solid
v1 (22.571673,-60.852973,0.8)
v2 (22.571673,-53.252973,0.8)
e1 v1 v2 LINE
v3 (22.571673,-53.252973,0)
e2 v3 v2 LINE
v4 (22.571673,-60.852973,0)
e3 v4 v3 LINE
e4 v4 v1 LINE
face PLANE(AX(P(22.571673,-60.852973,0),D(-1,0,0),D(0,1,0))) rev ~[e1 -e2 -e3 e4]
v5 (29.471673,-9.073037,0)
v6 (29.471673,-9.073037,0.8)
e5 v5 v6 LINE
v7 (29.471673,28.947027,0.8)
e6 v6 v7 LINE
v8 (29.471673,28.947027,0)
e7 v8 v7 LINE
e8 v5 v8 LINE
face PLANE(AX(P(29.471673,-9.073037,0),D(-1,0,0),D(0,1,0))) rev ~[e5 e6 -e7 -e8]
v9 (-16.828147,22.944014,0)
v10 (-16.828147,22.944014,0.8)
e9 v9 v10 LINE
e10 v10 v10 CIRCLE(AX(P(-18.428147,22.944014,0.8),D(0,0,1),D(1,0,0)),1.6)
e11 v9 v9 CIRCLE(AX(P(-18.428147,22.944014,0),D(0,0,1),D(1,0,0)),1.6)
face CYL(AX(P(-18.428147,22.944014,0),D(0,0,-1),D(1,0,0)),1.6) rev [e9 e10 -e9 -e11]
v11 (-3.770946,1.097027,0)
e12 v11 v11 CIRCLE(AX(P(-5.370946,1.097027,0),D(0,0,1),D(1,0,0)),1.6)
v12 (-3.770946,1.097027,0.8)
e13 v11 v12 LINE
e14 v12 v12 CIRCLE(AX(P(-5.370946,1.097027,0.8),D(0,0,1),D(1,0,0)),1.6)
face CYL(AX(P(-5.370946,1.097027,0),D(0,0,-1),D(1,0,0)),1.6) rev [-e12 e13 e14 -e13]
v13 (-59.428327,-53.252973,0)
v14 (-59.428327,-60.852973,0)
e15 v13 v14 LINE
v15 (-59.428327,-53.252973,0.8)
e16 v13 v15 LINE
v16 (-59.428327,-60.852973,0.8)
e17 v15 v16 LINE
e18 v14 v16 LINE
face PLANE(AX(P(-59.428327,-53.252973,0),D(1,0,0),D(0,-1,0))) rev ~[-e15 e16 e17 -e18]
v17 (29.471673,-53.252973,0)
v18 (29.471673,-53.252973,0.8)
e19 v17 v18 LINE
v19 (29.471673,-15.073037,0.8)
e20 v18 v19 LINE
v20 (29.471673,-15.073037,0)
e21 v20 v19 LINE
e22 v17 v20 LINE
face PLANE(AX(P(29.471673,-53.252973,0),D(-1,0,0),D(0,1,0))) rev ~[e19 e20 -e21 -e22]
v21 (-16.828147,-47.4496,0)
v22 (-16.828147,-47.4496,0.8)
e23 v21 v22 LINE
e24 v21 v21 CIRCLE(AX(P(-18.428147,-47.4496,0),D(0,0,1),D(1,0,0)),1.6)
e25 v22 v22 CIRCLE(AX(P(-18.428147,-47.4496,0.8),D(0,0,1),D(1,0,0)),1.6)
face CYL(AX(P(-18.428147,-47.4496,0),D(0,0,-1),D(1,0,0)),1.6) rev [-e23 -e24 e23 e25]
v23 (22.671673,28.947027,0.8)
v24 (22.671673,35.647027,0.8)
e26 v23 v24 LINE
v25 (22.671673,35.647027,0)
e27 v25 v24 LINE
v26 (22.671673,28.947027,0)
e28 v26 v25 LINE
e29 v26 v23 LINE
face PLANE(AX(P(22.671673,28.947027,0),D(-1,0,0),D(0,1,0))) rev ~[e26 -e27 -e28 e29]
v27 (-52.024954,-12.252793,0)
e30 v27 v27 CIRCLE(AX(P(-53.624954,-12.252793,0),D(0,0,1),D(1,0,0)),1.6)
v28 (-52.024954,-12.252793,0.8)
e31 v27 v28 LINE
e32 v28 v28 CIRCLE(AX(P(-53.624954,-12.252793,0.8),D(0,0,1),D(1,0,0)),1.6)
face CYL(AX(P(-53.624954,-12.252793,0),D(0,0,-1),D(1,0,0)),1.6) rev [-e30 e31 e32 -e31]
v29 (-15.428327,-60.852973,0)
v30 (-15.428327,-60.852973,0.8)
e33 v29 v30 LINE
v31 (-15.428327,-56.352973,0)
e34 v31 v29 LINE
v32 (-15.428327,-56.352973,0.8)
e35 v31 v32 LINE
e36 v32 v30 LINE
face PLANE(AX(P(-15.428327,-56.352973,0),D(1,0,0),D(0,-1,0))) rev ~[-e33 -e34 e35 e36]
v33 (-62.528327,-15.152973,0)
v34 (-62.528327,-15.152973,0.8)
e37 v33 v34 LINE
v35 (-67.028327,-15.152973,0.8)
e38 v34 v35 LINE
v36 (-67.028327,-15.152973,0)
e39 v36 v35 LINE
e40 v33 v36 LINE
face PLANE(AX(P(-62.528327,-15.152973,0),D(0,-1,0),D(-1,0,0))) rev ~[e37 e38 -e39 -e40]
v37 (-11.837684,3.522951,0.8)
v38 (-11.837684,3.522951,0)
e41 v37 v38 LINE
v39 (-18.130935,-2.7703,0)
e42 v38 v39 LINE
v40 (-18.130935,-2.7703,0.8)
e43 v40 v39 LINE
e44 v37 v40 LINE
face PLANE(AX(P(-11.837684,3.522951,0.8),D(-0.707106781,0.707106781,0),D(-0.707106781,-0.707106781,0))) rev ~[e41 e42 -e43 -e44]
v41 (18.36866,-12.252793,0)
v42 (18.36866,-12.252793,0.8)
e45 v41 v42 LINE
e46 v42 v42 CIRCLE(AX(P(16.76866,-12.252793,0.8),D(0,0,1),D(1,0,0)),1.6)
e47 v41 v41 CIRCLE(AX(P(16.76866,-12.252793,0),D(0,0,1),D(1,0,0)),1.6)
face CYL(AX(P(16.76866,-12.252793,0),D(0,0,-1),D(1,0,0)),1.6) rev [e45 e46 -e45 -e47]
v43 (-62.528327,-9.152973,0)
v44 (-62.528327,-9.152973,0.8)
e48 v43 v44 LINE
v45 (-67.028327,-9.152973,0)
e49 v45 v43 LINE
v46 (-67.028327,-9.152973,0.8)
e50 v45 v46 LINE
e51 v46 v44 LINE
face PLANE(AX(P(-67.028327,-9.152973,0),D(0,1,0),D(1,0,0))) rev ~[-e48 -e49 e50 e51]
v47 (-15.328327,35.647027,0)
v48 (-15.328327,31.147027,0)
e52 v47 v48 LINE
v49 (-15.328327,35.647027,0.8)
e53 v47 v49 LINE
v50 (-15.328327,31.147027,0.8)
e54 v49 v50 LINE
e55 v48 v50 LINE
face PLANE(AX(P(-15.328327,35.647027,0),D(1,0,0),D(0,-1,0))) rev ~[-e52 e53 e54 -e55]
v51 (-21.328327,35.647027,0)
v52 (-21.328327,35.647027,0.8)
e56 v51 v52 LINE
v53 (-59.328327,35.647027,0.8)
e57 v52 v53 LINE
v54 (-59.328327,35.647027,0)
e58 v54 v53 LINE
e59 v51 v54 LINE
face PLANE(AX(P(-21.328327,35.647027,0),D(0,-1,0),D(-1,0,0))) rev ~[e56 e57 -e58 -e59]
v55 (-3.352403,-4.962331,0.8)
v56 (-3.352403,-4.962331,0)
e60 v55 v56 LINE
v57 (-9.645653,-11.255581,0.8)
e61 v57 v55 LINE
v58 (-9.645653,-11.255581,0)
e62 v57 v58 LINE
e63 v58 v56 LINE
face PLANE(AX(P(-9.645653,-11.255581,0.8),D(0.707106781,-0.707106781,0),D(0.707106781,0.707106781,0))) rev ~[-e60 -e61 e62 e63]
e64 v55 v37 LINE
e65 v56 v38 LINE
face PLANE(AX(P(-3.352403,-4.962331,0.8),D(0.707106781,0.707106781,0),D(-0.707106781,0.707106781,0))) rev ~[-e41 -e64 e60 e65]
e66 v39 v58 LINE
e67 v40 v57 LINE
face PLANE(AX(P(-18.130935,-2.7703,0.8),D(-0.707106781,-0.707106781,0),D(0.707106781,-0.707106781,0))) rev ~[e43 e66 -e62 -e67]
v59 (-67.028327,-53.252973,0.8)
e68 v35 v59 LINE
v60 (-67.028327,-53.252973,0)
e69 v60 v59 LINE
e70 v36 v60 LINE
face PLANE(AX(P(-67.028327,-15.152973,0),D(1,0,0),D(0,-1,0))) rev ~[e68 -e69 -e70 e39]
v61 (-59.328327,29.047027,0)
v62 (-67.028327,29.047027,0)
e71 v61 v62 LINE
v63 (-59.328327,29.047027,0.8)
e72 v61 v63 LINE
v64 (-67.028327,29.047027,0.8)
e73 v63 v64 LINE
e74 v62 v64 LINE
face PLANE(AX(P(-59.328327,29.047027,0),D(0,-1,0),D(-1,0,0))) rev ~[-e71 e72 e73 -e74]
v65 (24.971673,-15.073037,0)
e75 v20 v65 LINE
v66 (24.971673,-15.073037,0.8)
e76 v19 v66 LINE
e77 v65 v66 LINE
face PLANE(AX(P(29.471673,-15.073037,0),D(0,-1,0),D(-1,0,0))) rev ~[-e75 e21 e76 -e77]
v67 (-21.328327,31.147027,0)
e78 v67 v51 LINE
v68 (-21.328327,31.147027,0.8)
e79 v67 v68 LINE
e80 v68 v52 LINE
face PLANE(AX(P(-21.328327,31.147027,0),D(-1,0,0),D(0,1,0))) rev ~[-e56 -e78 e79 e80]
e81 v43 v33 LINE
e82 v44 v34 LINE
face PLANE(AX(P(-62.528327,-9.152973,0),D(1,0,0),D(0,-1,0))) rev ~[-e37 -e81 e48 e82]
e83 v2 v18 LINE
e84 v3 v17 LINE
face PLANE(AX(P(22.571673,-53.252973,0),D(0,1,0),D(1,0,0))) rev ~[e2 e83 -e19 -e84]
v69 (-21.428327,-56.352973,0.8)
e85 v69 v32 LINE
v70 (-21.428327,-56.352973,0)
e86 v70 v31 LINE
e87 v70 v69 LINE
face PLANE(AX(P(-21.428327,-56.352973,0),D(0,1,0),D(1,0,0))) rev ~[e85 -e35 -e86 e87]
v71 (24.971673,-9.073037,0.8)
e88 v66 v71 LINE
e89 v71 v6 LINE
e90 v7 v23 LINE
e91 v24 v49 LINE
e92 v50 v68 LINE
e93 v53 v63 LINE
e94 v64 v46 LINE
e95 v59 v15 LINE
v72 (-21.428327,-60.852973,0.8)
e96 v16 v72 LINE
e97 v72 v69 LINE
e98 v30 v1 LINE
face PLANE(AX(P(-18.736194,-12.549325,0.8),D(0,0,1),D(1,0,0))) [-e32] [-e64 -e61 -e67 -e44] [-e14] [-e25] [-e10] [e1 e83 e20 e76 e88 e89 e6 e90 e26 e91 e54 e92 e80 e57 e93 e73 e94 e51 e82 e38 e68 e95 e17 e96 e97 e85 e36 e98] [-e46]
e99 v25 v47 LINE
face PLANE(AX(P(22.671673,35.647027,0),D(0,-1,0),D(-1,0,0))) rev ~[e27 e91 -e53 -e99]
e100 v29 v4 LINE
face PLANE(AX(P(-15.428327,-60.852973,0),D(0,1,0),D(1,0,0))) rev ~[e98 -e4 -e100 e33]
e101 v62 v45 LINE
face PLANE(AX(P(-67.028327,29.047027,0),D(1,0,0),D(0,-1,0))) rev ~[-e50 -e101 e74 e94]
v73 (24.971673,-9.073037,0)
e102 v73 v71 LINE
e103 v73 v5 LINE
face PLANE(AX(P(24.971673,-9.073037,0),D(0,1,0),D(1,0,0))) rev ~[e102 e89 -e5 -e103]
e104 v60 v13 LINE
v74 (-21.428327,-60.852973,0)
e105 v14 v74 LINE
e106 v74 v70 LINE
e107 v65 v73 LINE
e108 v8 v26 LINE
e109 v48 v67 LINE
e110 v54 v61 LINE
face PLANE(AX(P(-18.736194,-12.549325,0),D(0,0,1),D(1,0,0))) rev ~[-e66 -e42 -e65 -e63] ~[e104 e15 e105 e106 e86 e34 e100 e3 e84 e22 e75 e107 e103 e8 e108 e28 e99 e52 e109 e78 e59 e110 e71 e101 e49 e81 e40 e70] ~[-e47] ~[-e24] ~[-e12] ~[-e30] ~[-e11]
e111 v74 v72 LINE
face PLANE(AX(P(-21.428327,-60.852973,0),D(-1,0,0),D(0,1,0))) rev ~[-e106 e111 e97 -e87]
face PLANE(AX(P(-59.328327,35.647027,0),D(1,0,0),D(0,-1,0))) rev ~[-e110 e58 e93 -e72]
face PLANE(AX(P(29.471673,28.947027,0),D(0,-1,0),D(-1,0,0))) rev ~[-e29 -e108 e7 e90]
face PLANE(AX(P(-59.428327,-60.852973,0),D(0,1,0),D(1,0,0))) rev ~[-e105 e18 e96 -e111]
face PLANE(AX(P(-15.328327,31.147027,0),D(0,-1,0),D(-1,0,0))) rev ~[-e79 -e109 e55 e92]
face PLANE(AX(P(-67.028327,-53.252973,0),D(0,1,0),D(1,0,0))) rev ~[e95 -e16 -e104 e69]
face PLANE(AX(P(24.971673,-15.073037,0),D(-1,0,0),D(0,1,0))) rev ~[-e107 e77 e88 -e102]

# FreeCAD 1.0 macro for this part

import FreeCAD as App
import Part
import Sketcher

V = App.Vector
Q = App.Units.Quantity


def add_polygon(sketch, points):
    """Adds a closed chain of lines whose ends are joined by coincident constraints."""
    first, n = sketch.GeometryCount, len(points)
    for a, b in zip(points, points[1:] + points[:1]):
        sketch.addGeometry(Part.LineSegment(App.Vector(*a, 0), App.Vector(*b, 0)), False)
    for i in range(n):
        sketch.addConstraint(Sketcher.Constraint("Coincident", first + i, 2, first + (i + 1) % n, 1))

doc = App.newDocument("Part")
body = doc.addObject("PartDesign::Body", "Body")

# Sketch on XY plane
sketch1 = body.newObject("Sketcher::SketchObject", "Sketch")
sketch1.AttachmentSupport = (doc.getObject("XY_Plane"), [""])
sketch1.MapMode = "FlatFace"
add_polygon(sketch1, [(-21.3, 35.6), (-59.3, 35.6), (-59.3, 29), (-67, 29), (-67, -9.2), (-62.5, -9.2), (-62.5, -15.2), (-67, -15.2), (-67, -53.3), (-59.4, -53.3), (-59.4, -60.9), (-21.4, -60.9), (-21.4, -56.4), (-15.4, -56.4), (-15.4, -60.9), (22.6, -60.9), (22.6, -53.3), (29.5, -53.3), (29.5, -15.1), (25, -15.1), (25, -9.1), (29.5, -9.1), (29.5, 28.9), (22.7, 28.9), (22.7, 35.6), (-15.3, 35.6), (-15.3, 31.1), (-21.3, 31.1)])  # lines 0-27
sketch1.addGeometry(Part.Circle(V(-18.4, -47.4, 0), V(0, 0, 1), 1.6), False)  # 28
sketch1.addGeometry(Part.Circle(V(-53.6, -12.3, 0), V(0, 0, 1), 1.6), False)  # 29
sketch1.addGeometry(Part.Circle(V(-5.4, 1.1, 0), V(0, 0, 1), 1.6), False)  # 30
sketch1.addGeometry(Part.Circle(V(16.8, -12.3, 0), V(0, 0, 1), 1.6), False)  # 31
sketch1.addGeometry(Part.Circle(V(-18.4, 22.9, 0), V(0, 0, 1), 1.6), False)  # 32
sketch1.addConstraint(Sketcher.Constraint("Horizontal", 0))
sketch1.addConstraint(Sketcher.Constraint("Vertical", 1))
sketch1.addConstraint(Sketcher.Constraint("Horizontal", 2))
sketch1.addConstraint(Sketcher.Constraint("Vertical", 3))
sketch1.addConstraint(Sketcher.Constraint("Horizontal", 4))
sketch1.addConstraint(Sketcher.Constraint("Vertical", 5))
sketch1.addConstraint(Sketcher.Constraint("Horizontal", 6))
sketch1.addConstraint(Sketcher.Constraint("Vertical", 7))
sketch1.addConstraint(Sketcher.Constraint("Horizontal", 8))
sketch1.addConstraint(Sketcher.Constraint("Vertical", 9))
sketch1.addConstraint(Sketcher.Constraint("Horizontal", 10))
sketch1.addConstraint(Sketcher.Constraint("Vertical", 11))
sketch1.addConstraint(Sketcher.Constraint("Horizontal", 12))
sketch1.addConstraint(Sketcher.Constraint("Vertical", 13))
sketch1.addConstraint(Sketcher.Constraint("Horizontal", 14))
sketch1.addConstraint(Sketcher.Constraint("Vertical", 15))
sketch1.addConstraint(Sketcher.Constraint("Horizontal", 16))
sketch1.addConstraint(Sketcher.Constraint("Vertical", 17))
sketch1.addConstraint(Sketcher.Constraint("Horizontal", 18))
sketch1.addConstraint(Sketcher.Constraint("Vertical", 19))
sketch1.addConstraint(Sketcher.Constraint("Horizontal", 20))
sketch1.addConstraint(Sketcher.Constraint("Vertical", 21))
sketch1.addConstraint(Sketcher.Constraint("Horizontal", 22))
sketch1.addConstraint(Sketcher.Constraint("Vertical", 23))
sketch1.addConstraint(Sketcher.Constraint("Horizontal", 24))
sketch1.addConstraint(Sketcher.Constraint("Vertical", 25))
sketch1.addConstraint(Sketcher.Constraint("Horizontal", 26))
sketch1.addConstraint(Sketcher.Constraint("Vertical", 27))
sketch1.addConstraint(Sketcher.Constraint("Equal", 28, 29))
sketch1.addConstraint(Sketcher.Constraint("Equal", 29, 30))
sketch1.addConstraint(Sketcher.Constraint("Equal", 30, 31))
sketch1.addConstraint(Sketcher.Constraint("Equal", 31, 32))
sketch1.addConstraint(Sketcher.Constraint("Horizontal", 29, 3, 31, 3))
sketch1.addConstraint(Sketcher.Constraint("Horizontal", 10, 2, 13, 2))
sketch1.addConstraint(Sketcher.Constraint("Horizontal", 8, 2, 15, 2))
sketch1.addConstraint(Sketcher.Constraint("Horizontal", 0, 2, 23, 2))
sketch1.addConstraint(Sketcher.Constraint("Vertical", 28, 3, 32, 3))
sketch1.addConstraint(Sketcher.Constraint("Vertical", 3, 2, 6, 2))
sketch1.addConstraint(Sketcher.Constraint("Vertical", 17, 2, 20, 2))
sketch1.addConstraint(Sketcher.Constraint("Equal", 0, 10))
sketch1.addConstraint(Sketcher.Constraint("Equal", 10, 14))
sketch1.addConstraint(Sketcher.Constraint("Equal", 6, 18))
sketch1.addConstraint(Sketcher.Constraint("Equal", 14, 24))
sketch1.addConstraint(Sketcher.Constraint("Equal", 12, 26))
sketch1.addConstraint(Sketcher.Constraint("Equal", 26, 5))
sketch1.addConstraint(Sketcher.Constraint("Equal", 8, 9))
sketch1.addConstraint(Sketcher.Constraint("Equal", 20, 11))
sketch1.addConstraint(Sketcher.Constraint("Equal", 5, 19))
sketch1.addConstraint(Sketcher.Constraint("Equal", 13, 25))
sketch1.addConstraint(Sketcher.Constraint("Diameter", 28, Q("3.2 mm")))
sketch1.addConstraint(Sketcher.Constraint("DistanceX", 0, 2, 0, 1, Q("38 mm")))
sketch1.addConstraint(Sketcher.Constraint("DistanceX", 12, 1, 12, 2, Q("6 mm")))
sketch1.addConstraint(Sketcher.Constraint("DistanceX", 2, 2, 2, 1, Q("7.7 mm")))
sketch1.addConstraint(Sketcher.Constraint("DistanceX", 4, 1, 4, 2, Q("4.5 mm")))
sketch1.addConstraint(Sketcher.Constraint("DistanceX", 8, 1, 8, 2, Q("7.6 mm")))
sketch1.addConstraint(Sketcher.Constraint("DistanceX", 16, 1, 16, 2, Q("6.9 mm")))
sketch1.addConstraint(Sketcher.Constraint("DistanceY", 1, 2, 1, 1, Q("6.6 mm")))
sketch1.addConstraint(Sketcher.Constraint("DistanceY", 3, 2, 3, 1, Q("38.2 mm")))
sketch1.addConstraint(Sketcher.Constraint("DistanceY", 7, 2, 7, 1, Q("38.1 mm")))
sketch1.addConstraint(Sketcher.Constraint("DistanceY", 23, 1, 23, 2, Q("6.7 mm")))
sketch1.addConstraint(Sketcher.Constraint("DistanceY", 30, 3, 0, 2, Q("34.55 mm")))
sketch1.addConstraint(Sketcher.Constraint("DistanceY", 28, 3, -1, 1, Q("47.4496 mm")))
sketch1.addConstraint(Sketcher.Constraint("DistanceX", 28, 3, 30, 3, Q("13.057201 mm")))
sketch1.addConstraint(Sketcher.Constraint("DistanceY", 17, 1, 17, 2, Q("38.179936 mm")))
sketch1.addConstraint(Sketcher.Constraint("DistanceX", -1, 1, 31, 3, Q("16.76866 mm")))
sketch1.addConstraint(Sketcher.Constraint("DistanceX", 29, 3, 30, 3, Q("48.254008 mm")))
sketch1.addConstraint(Sketcher.Constraint("DistanceY", 29, 3, 30, 3, Q("13.34982 mm")))
sketch1.addConstraint(Sketcher.Constraint("DistanceX", 0, 2, 32, 3, Q("40.90018 mm")))
sketch1.addConstraint(Sketcher.Constraint("DistanceX", 28, 3, -1, 1, Q("18.428147 mm")))
sketch1.addConstraint(Sketcher.Constraint("DistanceY", 29, 3, -1, 1, Q("12.252793 mm")))
sketch1.addConstraint(Sketcher.Constraint("DistanceY", -1, 1, 32, 3, Q("22.944014 mm")))
pad1 = body.newObject("PartDesign::Pad", "Pad")
pad1.Profile = sketch1
pad1.Length = 0.8

# Sketch on XY plane
sketch2 = body.newObject("Sketcher::SketchObject", "Sketch001")
sketch2.AttachmentSupport = (doc.getObject("XY_Plane"), [""])
sketch2.MapMode = "FlatFace"
sketch2.AttachmentOffset = App.Placement(V(0, 0, 0.8), App.Rotation())
add_polygon(sketch2, [(-18, -3), (-10, -11), (-3, -5), (-12, 4)])  # lines 0-3
sketch2.addConstraint(Sketcher.Constraint("Perpendicular", 0, 1))
sketch2.addConstraint(Sketcher.Constraint("Perpendicular", 1, 2))
sketch2.addConstraint(Sketcher.Constraint("Perpendicular", 2, 3))
sketch2.addConstraint(Sketcher.Constraint("Angle", 0, Q("-45 deg")))
sketch2.addConstraint(Sketcher.Constraint("Distance", 0, Q("12 mm")))
sketch2.addConstraint(Sketcher.Constraint("Distance", 1, Q("8.9 mm")))
sketch2.addConstraint(Sketcher.Constraint("DistanceY", 3, 2, -1, 1, Q("2.7703 mm")))
sketch2.addConstraint(Sketcher.Constraint("DistanceX", 0, 2, -1, 1, Q("9.645653 mm")))
pocket1 = body.newObject("PartDesign::Pocket", "Pocket")
pocket1.Profile = sketch2
pocket1.Length = 0.8

doc.recompute()
